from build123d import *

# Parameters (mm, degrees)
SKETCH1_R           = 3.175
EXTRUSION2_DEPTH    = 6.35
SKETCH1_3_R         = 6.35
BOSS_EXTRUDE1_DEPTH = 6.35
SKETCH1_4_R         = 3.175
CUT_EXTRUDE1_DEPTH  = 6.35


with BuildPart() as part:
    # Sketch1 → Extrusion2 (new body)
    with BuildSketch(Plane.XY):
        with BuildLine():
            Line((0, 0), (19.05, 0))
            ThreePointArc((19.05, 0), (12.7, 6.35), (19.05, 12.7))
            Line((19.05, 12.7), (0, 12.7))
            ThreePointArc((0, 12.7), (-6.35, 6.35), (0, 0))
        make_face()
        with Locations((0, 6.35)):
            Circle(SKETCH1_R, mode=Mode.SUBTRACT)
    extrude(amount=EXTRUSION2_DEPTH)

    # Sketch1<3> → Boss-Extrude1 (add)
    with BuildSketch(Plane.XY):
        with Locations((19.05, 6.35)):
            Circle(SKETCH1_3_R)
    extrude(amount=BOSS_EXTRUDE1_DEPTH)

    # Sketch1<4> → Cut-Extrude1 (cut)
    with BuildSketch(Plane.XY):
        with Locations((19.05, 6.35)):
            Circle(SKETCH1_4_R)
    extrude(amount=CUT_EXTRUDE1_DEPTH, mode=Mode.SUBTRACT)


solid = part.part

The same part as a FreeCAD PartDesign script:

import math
import FreeCAD as App
import Part
import Sketcher
Q = App.Units.Quantity

doc = App.newDocument("Part")
body = doc.addObject("PartDesign::Body", "Body")

# Sketch on XY plane
sketch1 = body.newObject("Sketcher::SketchObject", "Sketch")
sketch1.AttachmentSupport = (doc.getObject("XY_Plane"), [""])
sketch1.MapMode = "FlatFace"
sketch1.addGeometry([
    Part.LineSegment(App.Vector(0, 0, 0), App.Vector(19.1, 0, 0)),  # 0
    Part.ArcOfCircle(Part.Circle(App.Vector(19.1, 6.3, 0), App.Vector(0, 0, 1), 6.3), math.radians(90), math.radians(270)),  # 1
    Part.LineSegment(App.Vector(19.1, 12.7, 0), App.Vector(0, 12.7, 0)),  # 2
    Part.ArcOfCircle(Part.Circle(App.Vector(0, 6.3, 0), App.Vector(0, 0, 1), 6.3), math.radians(90), math.radians(270)),  # 3
    Part.Circle(App.Vector(0, 6.3, 0), App.Vector(0, 0, 1), 3.2),  # 4
], False)
sketch1.addConstraint([
    Sketcher.Constraint("Tangent", 0, 2, 1, 2),
    Sketcher.Constraint("Tangent", 1, 1, 2, 1),
    Sketcher.Constraint("Tangent", 2, 2, 3, 1),
    Sketcher.Constraint("Tangent", 3, 2, 0, 1),
    Sketcher.Constraint("Horizontal", 0),
    Sketcher.Constraint("Horizontal", 2),
    Sketcher.Constraint("Coincident", 3, 2, -1, 1),
    Sketcher.Constraint("Coincident", 4, 3, 3, 3),
    Sketcher.Constraint("Diameter", 4, Q("0.25 in")),
    Sketcher.Constraint("Radius", 1, Q("0.25 in")),
    Sketcher.Constraint("DistanceX", 0, 1, 0, 2, Q("0.75 in")),
])
pad1 = body.newObject("PartDesign::Pad", "Pad")
pad1.Profile = sketch1
pad1.Length = Q("0.25 in")

# Sketch on XY plane
sketch2 = body.newObject("Sketcher::SketchObject", "Sketch001")
sketch2.AttachmentSupport = (doc.getObject("XY_Plane"), [""])
sketch2.MapMode = "FlatFace"
sketch2.addGeometry(Part.Circle(App.Vector(19, 6, 0), App.Vector(0, 0, 1), 6), False)
sketch2.addConstraint([
    Sketcher.Constraint("Diameter", 0, Q("0.5 in")),
    Sketcher.Constraint("DistanceX", -1, 1, 0, 3, Q("0.75 in")),
    Sketcher.Constraint("DistanceY", -1, 1, 0, 3, Q("0.25 in")),
])
pad2 = body.newObject("PartDesign::Pad", "Pad001")
pad2.Profile = sketch2
pad2.Length = Q("0.25 in")

# Sketch on XY plane
sketch3 = body.newObject("Sketcher::SketchObject", "Sketch002")
sketch3.AttachmentSupport = (doc.getObject("XY_Plane"), [""])
sketch3.MapMode = "FlatFace"
sketch3.addGeometry(Part.Circle(App.Vector(19.1, 6.3, 0), App.Vector(0, 0, 1), 3.2), False)
sketch3.addConstraint([
    Sketcher.Constraint("Diameter", 0, Q("0.25 in")),
    Sketcher.Constraint("DistanceX", -1, 1, 0, 3, Q("0.75 in")),
    Sketcher.Constraint("DistanceY", -1, 1, 0, 3, Q("0.25 in")),
])
pocket1 = body.newObject("PartDesign::Pocket", "Pocket")
pocket1.Profile = sketch3
pocket1.Length = Q("0.25 in")
pocket1.Reversed = True

doc.recompute()
